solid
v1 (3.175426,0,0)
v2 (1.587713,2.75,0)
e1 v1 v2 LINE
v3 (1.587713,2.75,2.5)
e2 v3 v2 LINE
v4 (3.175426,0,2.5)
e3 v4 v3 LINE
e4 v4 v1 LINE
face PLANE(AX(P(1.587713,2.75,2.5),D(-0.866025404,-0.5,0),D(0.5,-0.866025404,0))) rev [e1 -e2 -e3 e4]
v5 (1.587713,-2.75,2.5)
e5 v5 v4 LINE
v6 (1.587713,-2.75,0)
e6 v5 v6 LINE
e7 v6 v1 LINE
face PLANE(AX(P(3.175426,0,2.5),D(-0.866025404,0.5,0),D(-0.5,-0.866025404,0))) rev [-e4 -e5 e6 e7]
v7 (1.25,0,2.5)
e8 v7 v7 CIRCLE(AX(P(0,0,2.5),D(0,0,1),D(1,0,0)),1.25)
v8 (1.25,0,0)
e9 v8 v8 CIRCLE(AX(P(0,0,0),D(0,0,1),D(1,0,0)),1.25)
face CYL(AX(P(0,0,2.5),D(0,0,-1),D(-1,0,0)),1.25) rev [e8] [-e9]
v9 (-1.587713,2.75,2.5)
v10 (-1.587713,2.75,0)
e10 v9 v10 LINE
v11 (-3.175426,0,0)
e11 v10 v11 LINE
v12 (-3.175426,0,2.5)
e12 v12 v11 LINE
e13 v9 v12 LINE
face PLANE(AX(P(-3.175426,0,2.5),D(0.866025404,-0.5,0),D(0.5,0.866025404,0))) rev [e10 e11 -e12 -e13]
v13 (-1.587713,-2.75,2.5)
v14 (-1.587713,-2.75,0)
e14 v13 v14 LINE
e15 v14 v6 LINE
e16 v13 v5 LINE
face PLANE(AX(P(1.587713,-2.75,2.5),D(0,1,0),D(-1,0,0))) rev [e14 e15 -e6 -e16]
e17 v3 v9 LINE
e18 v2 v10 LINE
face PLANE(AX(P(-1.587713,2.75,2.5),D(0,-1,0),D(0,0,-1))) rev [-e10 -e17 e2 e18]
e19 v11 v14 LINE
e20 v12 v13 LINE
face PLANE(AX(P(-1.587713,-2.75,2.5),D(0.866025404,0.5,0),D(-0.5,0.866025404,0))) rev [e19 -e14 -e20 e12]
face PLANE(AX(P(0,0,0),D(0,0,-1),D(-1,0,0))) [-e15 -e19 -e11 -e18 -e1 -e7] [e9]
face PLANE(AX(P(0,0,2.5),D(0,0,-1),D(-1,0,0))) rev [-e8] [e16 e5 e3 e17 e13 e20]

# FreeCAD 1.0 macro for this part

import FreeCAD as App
import Part
import Sketcher

V = App.Vector
Q = App.Units.Quantity

doc = App.newDocument("Part")
body = doc.addObject("PartDesign::Body", "Body")

sketch1 = body.newObject("Sketcher::SketchObject", "Sketch")
sketch1.AttachmentSupport = (doc.getObject("XY_Plane"), [""])
sketch1.MapMode = "FlatFace"
sketch1.addGeometry([
    Part.LineSegment(V(1.6, 2.8, 0), V(-1.6, 2.8, 0)),
    Part.LineSegment(V(-1.6, 2.8, 0), V(-3.2, 0, 0)),
    Part.LineSegment(V(-3.2, 0, 0), V(-1.6, -2.8, 0)),
    Part.LineSegment(V(-1.6, -2.8, 0), V(1.6, -2.8, 0)),
    Part.LineSegment(V(1.6, -2.8, 0), V(3.2, 0, 0)),
    Part.LineSegment(V(3.2, 0, 0), V(1.6, 2.8, 0)),
    Part.Circle(V(0, 0, 0), V(0, 0, 1), 1.2),
], False)
sketch1.addConstraint([
    Sketcher.Constraint("Coincident", 0, 2, 1, 1),
    Sketcher.Constraint("Coincident", 1, 2, 2, 1),
    Sketcher.Constraint("Coincident", 2, 2, 3, 1),
    Sketcher.Constraint("Coincident", 3, 2, 4, 1),
    Sketcher.Constraint("Coincident", 4, 2, 5, 1),
    Sketcher.Constraint("Coincident", 5, 2, 0, 1),
    Sketcher.Constraint("Horizontal", 0),
    Sketcher.Constraint("Horizontal", 3),
    Sketcher.Constraint("Coincident", 6, 3, -1, 1),
    Sketcher.Constraint("Symmetric", 0, 2, 3, 2, -1, 1),
    Sketcher.Constraint("Symmetric", 1, 2, 4, 2, -1, 1),
    Sketcher.Constraint("PointOnObject", 1, 2, -1),
    Sketcher.Constraint("Parallel", 2, 5),
    Sketcher.Constraint("Vertical", 0, 2, 2, 2),
    Sketcher.Constraint("Diameter", 6, 2.5),
    Sketcher.Constraint("Angle", 1, Q("-120 deg")),
    Sketcher.Constraint("DistanceY", 2, 2, 0, 2, 5.5),
    Sketcher.Constraint("DistanceX", 0, 2, 0, 1, 3.175426),
])
pad1 = body.newObject("PartDesign::Pad", "Pad")
pad1.Profile = sketch1
pad1.Length = 2.5

doc.recompute()
